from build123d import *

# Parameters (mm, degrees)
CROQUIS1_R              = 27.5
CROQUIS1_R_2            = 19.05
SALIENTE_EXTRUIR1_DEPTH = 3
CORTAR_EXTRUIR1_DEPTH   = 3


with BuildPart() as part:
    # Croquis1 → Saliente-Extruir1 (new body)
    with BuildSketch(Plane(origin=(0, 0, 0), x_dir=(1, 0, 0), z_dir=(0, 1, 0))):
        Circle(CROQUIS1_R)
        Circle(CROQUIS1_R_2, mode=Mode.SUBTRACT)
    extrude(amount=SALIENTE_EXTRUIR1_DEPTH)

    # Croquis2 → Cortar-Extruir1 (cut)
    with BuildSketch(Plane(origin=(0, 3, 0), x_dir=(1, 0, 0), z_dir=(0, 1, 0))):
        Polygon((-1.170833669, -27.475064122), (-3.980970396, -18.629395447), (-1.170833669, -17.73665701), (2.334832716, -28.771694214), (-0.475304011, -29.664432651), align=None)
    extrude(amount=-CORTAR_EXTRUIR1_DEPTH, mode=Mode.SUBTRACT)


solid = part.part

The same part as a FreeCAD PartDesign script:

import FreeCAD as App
import Part
import Sketcher
from FreeCAD import Vector
Q = App.Units.Quantity


def add_polygon(sketch, points):
    """Adds a closed chain of lines whose ends are joined by coincident constraints."""
    first, n = sketch.GeometryCount, len(points)
    for a, b in zip(points, points[1:] + points[:1]):
        sketch.addGeometry(Part.LineSegment(App.Vector(*a, 0), App.Vector(*b, 0)), False)
    for i in range(n):
        sketch.addConstraint(Sketcher.Constraint("Coincident", first + i, 2, first + (i + 1) % n, 1))

doc = App.newDocument("Part")
body = doc.addObject("PartDesign::Body", "Body")

# Sketch on XZ plane
sketch1 = body.newObject("Sketcher::SketchObject", "Sketch")
sketch1.AttachmentSupport = (doc.getObject("XZ_Plane"), [""])
sketch1.MapMode = "FlatFace"
sketch1.addGeometry(Part.Circle(Vector(0, 0, 0), Vector(0, 0, 1), 27.5), False)
sketch1.addGeometry(Part.Circle(Vector(0, 0, 0), Vector(0, 0, 1), 19.05), False)
sketch1.addConstraint(Sketcher.Constraint("Coincident", 0, 3, -1, 1))
sketch1.addConstraint(Sketcher.Constraint("Coincident", 1, 3, -1, 1))
sketch1.addConstraint(Sketcher.Constraint("Diameter", 0, Q("55 mm")))
sketch1.addConstraint(Sketcher.Constraint("Diameter", 1, Q("38.1 mm")))
pad1 = body.newObject("PartDesign::Pad", "Pad")
pad1.Profile = sketch1
pad1.Length = 3
pad1.Reversed = True

# Sketch on XZ plane
sketch2 = body.newObject("Sketcher::SketchObject", "Sketch001")
sketch2.AttachmentSupport = (doc.getObject("XZ_Plane"), [""])
sketch2.MapMode = "FlatFace"
sketch2.AttachmentOffset = App.Placement(Vector(0, 0, -3), App.Rotation())
add_polygon(sketch2, [(-3.98097, 18.629395), (-1.170834, 27.475064), (-0.475304, 29.664433), (2.334833, 28.771694), (-1.170834, 17.736657)])  # lines 0-4
sketch2.addConstraint(Sketcher.Constraint("Parallel", 0, 1))
sketch2.addConstraint(Sketcher.Constraint("Perpendicular", 1, 2))
sketch2.addConstraint(Sketcher.Constraint("Perpendicular", 2, 3))
sketch2.addConstraint(Sketcher.Constraint("Perpendicular", 3, 4))
sketch2.addConstraint(Sketcher.Constraint("Vertical", 0, 2, 3, 2))
sketch2.addConstraint(Sketcher.Constraint("DistanceY", 4, 2, 2, 2, Q("10.142299 mm")))
sketch2.addConstraint(Sketcher.Constraint("Distance", 0, Q("9.28131 mm")))
sketch2.addConstraint(Sketcher.Constraint("DistanceX", 4, 2, -1, 1, Q("3.98097 mm")))
sketch2.addConstraint(Sketcher.Constraint("DistanceX", 0, 2, 1, 2, Q("0.69553 mm")))
sketch2.addConstraint(Sketcher.Constraint("DistanceY", -1, 1, 0, 2, Q("27.475064 mm")))
pocket1 = body.newObject("PartDesign::Pocket", "Pocket")
pocket1.Profile = sketch2
pocket1.Length = 3
pocket1.Reversed = True

doc.recompute()
